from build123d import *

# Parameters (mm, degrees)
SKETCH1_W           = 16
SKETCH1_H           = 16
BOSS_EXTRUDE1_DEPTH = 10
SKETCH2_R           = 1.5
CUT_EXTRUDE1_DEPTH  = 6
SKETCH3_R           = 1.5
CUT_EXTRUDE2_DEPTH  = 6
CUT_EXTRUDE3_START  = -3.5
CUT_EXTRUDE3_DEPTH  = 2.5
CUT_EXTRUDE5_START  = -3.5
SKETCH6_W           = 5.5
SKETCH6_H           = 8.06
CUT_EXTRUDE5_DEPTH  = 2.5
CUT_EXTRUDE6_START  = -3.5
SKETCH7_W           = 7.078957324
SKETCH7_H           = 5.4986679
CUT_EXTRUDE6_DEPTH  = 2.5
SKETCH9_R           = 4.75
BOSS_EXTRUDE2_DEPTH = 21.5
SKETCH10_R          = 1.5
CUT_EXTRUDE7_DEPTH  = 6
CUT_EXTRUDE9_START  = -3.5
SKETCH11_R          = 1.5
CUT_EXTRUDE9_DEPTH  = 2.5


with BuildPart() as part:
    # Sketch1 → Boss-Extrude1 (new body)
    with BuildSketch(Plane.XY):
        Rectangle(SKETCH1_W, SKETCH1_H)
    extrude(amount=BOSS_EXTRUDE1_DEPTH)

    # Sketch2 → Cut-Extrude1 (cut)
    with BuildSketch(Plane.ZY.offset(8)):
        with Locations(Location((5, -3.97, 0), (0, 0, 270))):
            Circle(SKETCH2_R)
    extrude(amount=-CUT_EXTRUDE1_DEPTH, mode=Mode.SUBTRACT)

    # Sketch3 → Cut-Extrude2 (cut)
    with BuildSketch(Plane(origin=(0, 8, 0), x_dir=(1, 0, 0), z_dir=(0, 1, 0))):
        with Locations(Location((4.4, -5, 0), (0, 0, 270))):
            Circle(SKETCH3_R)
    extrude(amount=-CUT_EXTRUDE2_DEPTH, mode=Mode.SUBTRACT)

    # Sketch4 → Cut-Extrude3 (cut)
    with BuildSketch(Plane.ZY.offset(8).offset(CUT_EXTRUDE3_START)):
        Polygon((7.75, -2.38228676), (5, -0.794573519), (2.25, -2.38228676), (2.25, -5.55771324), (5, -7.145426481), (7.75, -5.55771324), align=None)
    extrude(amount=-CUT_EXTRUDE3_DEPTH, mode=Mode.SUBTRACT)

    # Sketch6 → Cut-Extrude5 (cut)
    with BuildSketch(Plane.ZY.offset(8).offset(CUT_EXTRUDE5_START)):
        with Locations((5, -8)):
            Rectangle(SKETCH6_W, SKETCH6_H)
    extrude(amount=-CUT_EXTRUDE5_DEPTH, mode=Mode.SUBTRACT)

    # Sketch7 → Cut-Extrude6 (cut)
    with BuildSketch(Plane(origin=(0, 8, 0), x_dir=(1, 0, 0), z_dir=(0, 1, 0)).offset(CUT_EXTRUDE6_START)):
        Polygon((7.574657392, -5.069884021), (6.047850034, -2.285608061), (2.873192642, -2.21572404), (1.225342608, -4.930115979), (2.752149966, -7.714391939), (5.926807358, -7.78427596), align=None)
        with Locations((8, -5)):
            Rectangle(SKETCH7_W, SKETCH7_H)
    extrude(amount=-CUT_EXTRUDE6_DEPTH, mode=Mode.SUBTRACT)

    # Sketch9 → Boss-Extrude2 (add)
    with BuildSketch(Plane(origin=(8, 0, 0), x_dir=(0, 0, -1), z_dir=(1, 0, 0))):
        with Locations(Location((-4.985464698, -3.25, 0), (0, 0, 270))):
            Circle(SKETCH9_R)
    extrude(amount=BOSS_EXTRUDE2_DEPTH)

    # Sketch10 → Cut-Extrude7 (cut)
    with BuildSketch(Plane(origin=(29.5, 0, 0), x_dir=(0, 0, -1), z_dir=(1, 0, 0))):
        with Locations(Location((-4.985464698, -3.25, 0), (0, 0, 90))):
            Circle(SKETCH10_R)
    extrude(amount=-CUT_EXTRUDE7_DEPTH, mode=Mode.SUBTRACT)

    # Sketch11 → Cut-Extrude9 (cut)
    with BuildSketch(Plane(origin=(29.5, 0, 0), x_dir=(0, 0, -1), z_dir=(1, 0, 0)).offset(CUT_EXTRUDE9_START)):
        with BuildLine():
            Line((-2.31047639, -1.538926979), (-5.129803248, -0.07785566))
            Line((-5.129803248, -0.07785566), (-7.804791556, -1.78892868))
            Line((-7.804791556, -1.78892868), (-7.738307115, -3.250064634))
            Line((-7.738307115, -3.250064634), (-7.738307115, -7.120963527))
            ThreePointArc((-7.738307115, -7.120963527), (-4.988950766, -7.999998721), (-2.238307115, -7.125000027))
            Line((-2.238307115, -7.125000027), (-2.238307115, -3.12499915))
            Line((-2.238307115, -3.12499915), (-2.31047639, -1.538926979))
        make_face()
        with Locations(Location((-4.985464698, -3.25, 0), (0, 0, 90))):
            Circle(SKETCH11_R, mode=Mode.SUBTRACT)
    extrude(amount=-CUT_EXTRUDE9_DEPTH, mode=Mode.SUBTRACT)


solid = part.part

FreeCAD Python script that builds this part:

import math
import FreeCAD as App
import Part
import Sketcher
from FreeCAD import Vector
Q = App.Units.Quantity


def add_polygon(sketch, points):
    """Adds a closed chain of lines whose ends are joined by coincident constraints."""
    first, n = sketch.GeometryCount, len(points)
    for a, b in zip(points, points[1:] + points[:1]):
        sketch.addGeometry(Part.LineSegment(App.Vector(*a, 0), App.Vector(*b, 0)), False)
    for i in range(n):
        sketch.addConstraint(Sketcher.Constraint("Coincident", first + i, 2, first + (i + 1) % n, 1))

doc = App.newDocument("Part")
body = doc.addObject("PartDesign::Body", "Body")

# Sketch on XY plane
sketch1 = body.newObject("Sketcher::SketchObject", "Sketch")
sketch1.AttachmentSupport = (doc.getObject("XY_Plane"), [""])
sketch1.MapMode = "FlatFace"
add_polygon(sketch1, [(-8, 8), (-8, -8), (8, -8), (8, 8)])  # lines 0-3
sketch1.addConstraint(Sketcher.Constraint("Vertical", 0))
sketch1.addConstraint(Sketcher.Constraint("Horizontal", 1))
sketch1.addConstraint(Sketcher.Constraint("Vertical", 2))
sketch1.addConstraint(Sketcher.Constraint("Horizontal", 3))
sketch1.addConstraint(Sketcher.Constraint("Symmetric", 0, 2, 2, 2, -1, 1))
sketch1.addConstraint(Sketcher.Constraint("Equal", 3, 0))
sketch1.addConstraint(Sketcher.Constraint("DistanceX", 1, 1, 1, 2, 16.0))
pad1 = body.newObject("PartDesign::Pad", "Pad")
pad1.Profile = sketch1
pad1.Length = 10

# Sketch on YZ plane
sketch2 = body.newObject("Sketcher::SketchObject", "Sketch001")
sketch2.AttachmentSupport = (doc.getObject("YZ_Plane"), [""])
sketch2.MapMode = "FlatFace"
sketch2.AttachmentOffset = App.Placement(Vector(0, 0, -8), App.Rotation())
sketch2.addGeometry(Part.Circle(Vector(-4, 5, 0), Vector(0, 0, 1), 1.5), False)
sketch2.addConstraint(Sketcher.Constraint("Diameter", 0, 3.0))
sketch2.addConstraint(Sketcher.Constraint("DistanceY", -1, 1, 0, 3, 5.0))
sketch2.addConstraint(Sketcher.Constraint("DistanceX", 0, 3, -1, 1, 3.97))
pocket1 = body.newObject("PartDesign::Pocket", "Pocket")
pocket1.Profile = sketch2
pocket1.Length = 6
pocket1.Reversed = True

# Sketch on XZ plane
sketch3 = body.newObject("Sketcher::SketchObject", "Sketch002")
sketch3.AttachmentSupport = (doc.getObject("XZ_Plane"), [""])
sketch3.MapMode = "FlatFace"
sketch3.AttachmentOffset = App.Placement(Vector(0, 0, -8), App.Rotation())
sketch3.addGeometry(Part.Circle(Vector(4.4, 5, 0), Vector(0, 0, 1), 1.5), False)
sketch3.addConstraint(Sketcher.Constraint("Diameter", 0, 3.0))
sketch3.addConstraint(Sketcher.Constraint("DistanceY", -1, 1, 0, 3, 5.0))
sketch3.addConstraint(Sketcher.Constraint("DistanceX", -1, 1, 0, 3, 4.4))
pocket2 = body.newObject("PartDesign::Pocket", "Pocket001")
pocket2.Profile = sketch3
pocket2.Length = 6
pocket2.Reversed = True

# Sketch on YZ plane
sketch4 = body.newObject("Sketcher::SketchObject", "Sketch003")
sketch4.AttachmentSupport = (doc.getObject("YZ_Plane"), [""])
sketch4.MapMode = "FlatFace"
sketch4.AttachmentOffset = App.Placement(Vector(0, 0, -4.5), App.Rotation())
add_polygon(sketch4, [(-2.4, 7.8), (-0.8, 5), (-2.4, 2.2), (-5.6, 2.2), (-7.1, 5), (-5.6, 7.8)])  # lines 0-5
sketch4.addConstraint(Sketcher.Constraint("Horizontal", 2))
sketch4.addConstraint(Sketcher.Constraint("Horizontal", 5))
sketch4.addConstraint(Sketcher.Constraint("Parallel", 0, 3))
sketch4.addConstraint(Sketcher.Constraint("Parallel", 1, 4))
sketch4.addConstraint(Sketcher.Constraint("Horizontal", 0, 2, 3, 2))
sketch4.addConstraint(Sketcher.Constraint("Vertical", 2, 2, 4, 2))
sketch4.addConstraint(Sketcher.Constraint("Vertical", 1, 2, 5, 2))
sketch4.addConstraint(Sketcher.Constraint("Angle", 0, Q("-60 deg")))
sketch4.addConstraint(Sketcher.Constraint("DistanceY", -1, 1, 0, 2, 5.0))
sketch4.addConstraint(Sketcher.Constraint("DistanceY", 2, 2, 4, 2, 5.5))
sketch4.addConstraint(Sketcher.Constraint("DistanceX", 2, 2, 2, 1, 3.175426))
sketch4.addConstraint(Sketcher.Constraint("DistanceX", 0, 2, -1, 1, 0.794574))
pocket3 = body.newObject("PartDesign::Pocket", "Pocket002")
pocket3.Profile = sketch4
pocket3.Length = 2.5
pocket3.Reversed = True

# Sketch on YZ plane
sketch5 = body.newObject("Sketcher::SketchObject", "Sketch004")
sketch5.AttachmentSupport = (doc.getObject("YZ_Plane"), [""])
sketch5.MapMode = "FlatFace"
sketch5.AttachmentOffset = App.Placement(Vector(0, 0, -4.5), App.Rotation())
add_polygon(sketch5, [(-4, 2), (-12, 2), (-12, 8), (-4, 8)])  # lines 0-3
sketch5.addConstraint(Sketcher.Constraint("Horizontal", 0))
sketch5.addConstraint(Sketcher.Constraint("Vertical", 1))
sketch5.addConstraint(Sketcher.Constraint("Horizontal", 2))
sketch5.addConstraint(Sketcher.Constraint("Vertical", 3))
sketch5.addConstraint(Sketcher.Constraint("DistanceY", 1, 1, 1, 2, 5.5))
sketch5.addConstraint(Sketcher.Constraint("DistanceX", 0, 2, 0, 1, 8.06))
sketch5.addConstraint(Sketcher.Constraint("DistanceX", 0, 2, -1, 1, 12.03))
sketch5.addConstraint(Sketcher.Constraint("DistanceY", -1, 1, 0, 2, 2.25))
pocket4 = body.newObject("PartDesign::Pocket", "Pocket003")
pocket4.Profile = sketch5
pocket4.Length = 2.5
pocket4.Reversed = True

# Sketch on XZ plane
sketch6 = body.newObject("Sketcher::SketchObject", "Sketch005")
sketch6.AttachmentSupport = (doc.getObject("XZ_Plane"), [""])
sketch6.MapMode = "FlatFace"
sketch6.AttachmentOffset = App.Placement(Vector(0, 0, -4.5), App.Rotation())
add_polygon(sketch6, [(11.539, 2.251), (4.461, 2.251), (2.873, 2.216), (1.225, 4.93), (2.752, 7.714), (5.927, 7.784), (5.948, 7.749), (11.539, 7.749)])  # lines 0-7
sketch6.addConstraint(Sketcher.Constraint("Horizontal", 0))
sketch6.addConstraint(Sketcher.Constraint("Horizontal", 6))
sketch6.addConstraint(Sketcher.Constraint("Vertical", 7))
sketch6.addConstraint(Sketcher.Constraint("Parallel", 1, 4))
sketch6.addConstraint(Sketcher.Constraint("Parallel", 2, 5))
sketch6.addConstraint(Sketcher.Constraint("Equal", 2, 3))
sketch6.addConstraint(Sketcher.Constraint("Equal", 3, 4))
sketch6.addConstraint(Sketcher.Constraint("DistanceX", 6, 1, 6, 2, 5.591459))
sketch6.addConstraint(Sketcher.Constraint("DistanceX", 0, 2, 5, 2, 1.487499))
sketch6.addConstraint(Sketcher.Constraint("DistanceY", 7, 2, 7, 1, 5.498668))
sketch6.addConstraint(Sketcher.Constraint("DistanceX", -1, 1, 0, 2, 4.460521))
sketch6.addConstraint(Sketcher.Constraint("DistanceX", -1, 1, 3, 2, 2.75215))
sketch6.addConstraint(Sketcher.Constraint("DistanceY", -1, 1, 3, 2, 7.714392))
sketch6.addConstraint(Sketcher.Constraint("DistanceX", 1, 2, 0, 2, 1.587329))
sketch6.addConstraint(Sketcher.Constraint("DistanceX", 2, 2, 1, 2, 1.64785))
sketch6.addConstraint(Sketcher.Constraint("DistanceY", 1, 2, 2, 2, 2.714392))
pocket5 = body.newObject("PartDesign::Pocket", "Pocket004")
pocket5.Profile = sketch6
pocket5.Length = 2.5
pocket5.Reversed = True

# Sketch on YZ plane
sketch7 = body.newObject("Sketcher::SketchObject", "Sketch006")
sketch7.AttachmentSupport = (doc.getObject("YZ_Plane"), [""])
sketch7.MapMode = "FlatFace"
sketch7.AttachmentOffset = App.Placement(Vector(0, 0, 8), App.Rotation())
sketch7.addGeometry(Part.Circle(Vector(-3.2, 5, 0), Vector(0, 0, 1), 4.8), False)
sketch7.addConstraint(Sketcher.Constraint("Diameter", 0, 9.5))
sketch7.addConstraint(Sketcher.Constraint("DistanceX", 0, 3, -1, 1, 3.25))
sketch7.addConstraint(Sketcher.Constraint("DistanceY", -1, 1, 0, 3, 4.985465))
pad2 = body.newObject("PartDesign::Pad", "Pad001")
pad2.Profile = sketch7
pad2.Length = 21.5

# Sketch on YZ plane
sketch8 = body.newObject("Sketcher::SketchObject", "Sketch007")
sketch8.AttachmentSupport = (doc.getObject("YZ_Plane"), [""])
sketch8.MapMode = "FlatFace"
sketch8.AttachmentOffset = App.Placement(Vector(0, 0, 29.5), App.Rotation())
sketch8.addGeometry(Part.Circle(Vector(-3.2, 5, 0), Vector(0, 0, 1), 1.5), False)
sketch8.addConstraint(Sketcher.Constraint("Diameter", 0, 3.0))
sketch8.addConstraint(Sketcher.Constraint("DistanceX", 0, 3, -1, 1, 3.25))
sketch8.addConstraint(Sketcher.Constraint("DistanceY", -1, 1, 0, 3, 4.985465))
pocket6 = body.newObject("PartDesign::Pocket", "Pocket005")
pocket6.Profile = sketch8
pocket6.Length = 6

# Sketch on YZ plane
sketch9 = body.newObject("Sketcher::SketchObject", "Sketch008")
sketch9.AttachmentSupport = (doc.getObject("YZ_Plane"), [""])
sketch9.MapMode = "FlatFace"
sketch9.AttachmentOffset = App.Placement(Vector(0, 0, 26), App.Rotation())
sketch9.addGeometry(Part.LineSegment(Vector(-1.5, 2.3, 0), Vector(-0.1, 5.1, 0)), False)
sketch9.addGeometry(Part.LineSegment(Vector(-0.1, 5.1, 0), Vector(-1.8, 7.8, 0)), False)
sketch9.addGeometry(Part.LineSegment(Vector(-1.8, 7.8, 0), Vector(-3.3, 7.7, 0)), False)
sketch9.addGeometry(Part.LineSegment(Vector(-3.3, 7.7, 0), Vector(-7.1, 7.7, 0)), False)
sketch9.addGeometry(Part.ArcOfCircle(Part.Circle(Vector(-3.3, 5, 0), Vector(0, 0, 1), 4.7), math.radians(145), math.radians(215)), False)
sketch9.addGeometry(Part.LineSegment(Vector(-7.1, 2.2, 0), Vector(-3.1, 2.2, 0)), False)
sketch9.addGeometry(Part.LineSegment(Vector(-3.1, 2.2, 0), Vector(-1.5, 2.3, 0)), False)
sketch9.addGeometry(Part.Circle(Vector(-3.2, 5, 0), Vector(0, 0, 1), 1.5), False)
sketch9.addConstraint(Sketcher.Constraint("Coincident", 0, 2, 1, 1))
sketch9.addConstraint(Sketcher.Constraint("Coincident", 1, 2, 2, 1))
sketch9.addConstraint(Sketcher.Constraint("Coincident", 2, 2, 3, 1))
sketch9.addConstraint(Sketcher.Constraint("Coincident", 3, 2, 4, 1))
sketch9.addConstraint(Sketcher.Constraint("Coincident", 4, 2, 5, 1))
sketch9.addConstraint(Sketcher.Constraint("Coincident", 5, 2, 6, 1))
sketch9.addConstraint(Sketcher.Constraint("Coincident", 6, 2, 0, 1))
sketch9.addConstraint(Sketcher.Constraint("Horizontal", 3))
sketch9.addConstraint(Sketcher.Constraint("Horizontal", 5))
sketch9.addConstraint(Sketcher.Constraint("Coincident", 7, 3, 4, 3))
sketch9.addConstraint(Sketcher.Constraint("Parallel", 2, 6))
sketch9.addConstraint(Sketcher.Constraint("Equal", 0, 1))
sketch9.addConstraint(Sketcher.Constraint("Diameter", 7, 3.0))
sketch9.addConstraint(Sketcher.Constraint("DistanceX", 5, 1, 5, 2, 4.000001))
sketch9.addConstraint(Sketcher.Constraint("Radius", 4, 4.75))
sketch9.addConstraint(Sketcher.Constraint("DistanceY", 4, 2, 3, 2, 5.5))
sketch9.addConstraint(Sketcher.Constraint("DistanceX", 4, 3, -1, 1, 3.25))
sketch9.addConstraint(Sketcher.Constraint("DistanceX", 1, 2, 6, 2, 0.250002))
sketch9.addConstraint(Sketcher.Constraint("DistanceX", 3, 2, 3, 1, 3.870899))
sketch9.addConstraint(Sketcher.Constraint("DistanceX", 4, 2, -1, 1, 7.125))
sketch9.addConstraint(Sketcher.Constraint("DistanceX", 1, 2, -1, 1, 1.788929))
sketch9.addConstraint(Sketcher.Constraint("DistanceY", -1, 1, 1, 2, 7.804792))
sketch9.addConstraint(Sketcher.Constraint("DistanceY", 7, 3, 0, 2, 0.144339))
sketch9.addConstraint(Sketcher.Constraint("DistanceY", 0, 2, 1, 2, 2.674988))
pocket7 = body.newObject("PartDesign::Pocket", "Pocket006")
pocket7.Profile = sketch9
pocket7.Length = 2.5

doc.recompute()
